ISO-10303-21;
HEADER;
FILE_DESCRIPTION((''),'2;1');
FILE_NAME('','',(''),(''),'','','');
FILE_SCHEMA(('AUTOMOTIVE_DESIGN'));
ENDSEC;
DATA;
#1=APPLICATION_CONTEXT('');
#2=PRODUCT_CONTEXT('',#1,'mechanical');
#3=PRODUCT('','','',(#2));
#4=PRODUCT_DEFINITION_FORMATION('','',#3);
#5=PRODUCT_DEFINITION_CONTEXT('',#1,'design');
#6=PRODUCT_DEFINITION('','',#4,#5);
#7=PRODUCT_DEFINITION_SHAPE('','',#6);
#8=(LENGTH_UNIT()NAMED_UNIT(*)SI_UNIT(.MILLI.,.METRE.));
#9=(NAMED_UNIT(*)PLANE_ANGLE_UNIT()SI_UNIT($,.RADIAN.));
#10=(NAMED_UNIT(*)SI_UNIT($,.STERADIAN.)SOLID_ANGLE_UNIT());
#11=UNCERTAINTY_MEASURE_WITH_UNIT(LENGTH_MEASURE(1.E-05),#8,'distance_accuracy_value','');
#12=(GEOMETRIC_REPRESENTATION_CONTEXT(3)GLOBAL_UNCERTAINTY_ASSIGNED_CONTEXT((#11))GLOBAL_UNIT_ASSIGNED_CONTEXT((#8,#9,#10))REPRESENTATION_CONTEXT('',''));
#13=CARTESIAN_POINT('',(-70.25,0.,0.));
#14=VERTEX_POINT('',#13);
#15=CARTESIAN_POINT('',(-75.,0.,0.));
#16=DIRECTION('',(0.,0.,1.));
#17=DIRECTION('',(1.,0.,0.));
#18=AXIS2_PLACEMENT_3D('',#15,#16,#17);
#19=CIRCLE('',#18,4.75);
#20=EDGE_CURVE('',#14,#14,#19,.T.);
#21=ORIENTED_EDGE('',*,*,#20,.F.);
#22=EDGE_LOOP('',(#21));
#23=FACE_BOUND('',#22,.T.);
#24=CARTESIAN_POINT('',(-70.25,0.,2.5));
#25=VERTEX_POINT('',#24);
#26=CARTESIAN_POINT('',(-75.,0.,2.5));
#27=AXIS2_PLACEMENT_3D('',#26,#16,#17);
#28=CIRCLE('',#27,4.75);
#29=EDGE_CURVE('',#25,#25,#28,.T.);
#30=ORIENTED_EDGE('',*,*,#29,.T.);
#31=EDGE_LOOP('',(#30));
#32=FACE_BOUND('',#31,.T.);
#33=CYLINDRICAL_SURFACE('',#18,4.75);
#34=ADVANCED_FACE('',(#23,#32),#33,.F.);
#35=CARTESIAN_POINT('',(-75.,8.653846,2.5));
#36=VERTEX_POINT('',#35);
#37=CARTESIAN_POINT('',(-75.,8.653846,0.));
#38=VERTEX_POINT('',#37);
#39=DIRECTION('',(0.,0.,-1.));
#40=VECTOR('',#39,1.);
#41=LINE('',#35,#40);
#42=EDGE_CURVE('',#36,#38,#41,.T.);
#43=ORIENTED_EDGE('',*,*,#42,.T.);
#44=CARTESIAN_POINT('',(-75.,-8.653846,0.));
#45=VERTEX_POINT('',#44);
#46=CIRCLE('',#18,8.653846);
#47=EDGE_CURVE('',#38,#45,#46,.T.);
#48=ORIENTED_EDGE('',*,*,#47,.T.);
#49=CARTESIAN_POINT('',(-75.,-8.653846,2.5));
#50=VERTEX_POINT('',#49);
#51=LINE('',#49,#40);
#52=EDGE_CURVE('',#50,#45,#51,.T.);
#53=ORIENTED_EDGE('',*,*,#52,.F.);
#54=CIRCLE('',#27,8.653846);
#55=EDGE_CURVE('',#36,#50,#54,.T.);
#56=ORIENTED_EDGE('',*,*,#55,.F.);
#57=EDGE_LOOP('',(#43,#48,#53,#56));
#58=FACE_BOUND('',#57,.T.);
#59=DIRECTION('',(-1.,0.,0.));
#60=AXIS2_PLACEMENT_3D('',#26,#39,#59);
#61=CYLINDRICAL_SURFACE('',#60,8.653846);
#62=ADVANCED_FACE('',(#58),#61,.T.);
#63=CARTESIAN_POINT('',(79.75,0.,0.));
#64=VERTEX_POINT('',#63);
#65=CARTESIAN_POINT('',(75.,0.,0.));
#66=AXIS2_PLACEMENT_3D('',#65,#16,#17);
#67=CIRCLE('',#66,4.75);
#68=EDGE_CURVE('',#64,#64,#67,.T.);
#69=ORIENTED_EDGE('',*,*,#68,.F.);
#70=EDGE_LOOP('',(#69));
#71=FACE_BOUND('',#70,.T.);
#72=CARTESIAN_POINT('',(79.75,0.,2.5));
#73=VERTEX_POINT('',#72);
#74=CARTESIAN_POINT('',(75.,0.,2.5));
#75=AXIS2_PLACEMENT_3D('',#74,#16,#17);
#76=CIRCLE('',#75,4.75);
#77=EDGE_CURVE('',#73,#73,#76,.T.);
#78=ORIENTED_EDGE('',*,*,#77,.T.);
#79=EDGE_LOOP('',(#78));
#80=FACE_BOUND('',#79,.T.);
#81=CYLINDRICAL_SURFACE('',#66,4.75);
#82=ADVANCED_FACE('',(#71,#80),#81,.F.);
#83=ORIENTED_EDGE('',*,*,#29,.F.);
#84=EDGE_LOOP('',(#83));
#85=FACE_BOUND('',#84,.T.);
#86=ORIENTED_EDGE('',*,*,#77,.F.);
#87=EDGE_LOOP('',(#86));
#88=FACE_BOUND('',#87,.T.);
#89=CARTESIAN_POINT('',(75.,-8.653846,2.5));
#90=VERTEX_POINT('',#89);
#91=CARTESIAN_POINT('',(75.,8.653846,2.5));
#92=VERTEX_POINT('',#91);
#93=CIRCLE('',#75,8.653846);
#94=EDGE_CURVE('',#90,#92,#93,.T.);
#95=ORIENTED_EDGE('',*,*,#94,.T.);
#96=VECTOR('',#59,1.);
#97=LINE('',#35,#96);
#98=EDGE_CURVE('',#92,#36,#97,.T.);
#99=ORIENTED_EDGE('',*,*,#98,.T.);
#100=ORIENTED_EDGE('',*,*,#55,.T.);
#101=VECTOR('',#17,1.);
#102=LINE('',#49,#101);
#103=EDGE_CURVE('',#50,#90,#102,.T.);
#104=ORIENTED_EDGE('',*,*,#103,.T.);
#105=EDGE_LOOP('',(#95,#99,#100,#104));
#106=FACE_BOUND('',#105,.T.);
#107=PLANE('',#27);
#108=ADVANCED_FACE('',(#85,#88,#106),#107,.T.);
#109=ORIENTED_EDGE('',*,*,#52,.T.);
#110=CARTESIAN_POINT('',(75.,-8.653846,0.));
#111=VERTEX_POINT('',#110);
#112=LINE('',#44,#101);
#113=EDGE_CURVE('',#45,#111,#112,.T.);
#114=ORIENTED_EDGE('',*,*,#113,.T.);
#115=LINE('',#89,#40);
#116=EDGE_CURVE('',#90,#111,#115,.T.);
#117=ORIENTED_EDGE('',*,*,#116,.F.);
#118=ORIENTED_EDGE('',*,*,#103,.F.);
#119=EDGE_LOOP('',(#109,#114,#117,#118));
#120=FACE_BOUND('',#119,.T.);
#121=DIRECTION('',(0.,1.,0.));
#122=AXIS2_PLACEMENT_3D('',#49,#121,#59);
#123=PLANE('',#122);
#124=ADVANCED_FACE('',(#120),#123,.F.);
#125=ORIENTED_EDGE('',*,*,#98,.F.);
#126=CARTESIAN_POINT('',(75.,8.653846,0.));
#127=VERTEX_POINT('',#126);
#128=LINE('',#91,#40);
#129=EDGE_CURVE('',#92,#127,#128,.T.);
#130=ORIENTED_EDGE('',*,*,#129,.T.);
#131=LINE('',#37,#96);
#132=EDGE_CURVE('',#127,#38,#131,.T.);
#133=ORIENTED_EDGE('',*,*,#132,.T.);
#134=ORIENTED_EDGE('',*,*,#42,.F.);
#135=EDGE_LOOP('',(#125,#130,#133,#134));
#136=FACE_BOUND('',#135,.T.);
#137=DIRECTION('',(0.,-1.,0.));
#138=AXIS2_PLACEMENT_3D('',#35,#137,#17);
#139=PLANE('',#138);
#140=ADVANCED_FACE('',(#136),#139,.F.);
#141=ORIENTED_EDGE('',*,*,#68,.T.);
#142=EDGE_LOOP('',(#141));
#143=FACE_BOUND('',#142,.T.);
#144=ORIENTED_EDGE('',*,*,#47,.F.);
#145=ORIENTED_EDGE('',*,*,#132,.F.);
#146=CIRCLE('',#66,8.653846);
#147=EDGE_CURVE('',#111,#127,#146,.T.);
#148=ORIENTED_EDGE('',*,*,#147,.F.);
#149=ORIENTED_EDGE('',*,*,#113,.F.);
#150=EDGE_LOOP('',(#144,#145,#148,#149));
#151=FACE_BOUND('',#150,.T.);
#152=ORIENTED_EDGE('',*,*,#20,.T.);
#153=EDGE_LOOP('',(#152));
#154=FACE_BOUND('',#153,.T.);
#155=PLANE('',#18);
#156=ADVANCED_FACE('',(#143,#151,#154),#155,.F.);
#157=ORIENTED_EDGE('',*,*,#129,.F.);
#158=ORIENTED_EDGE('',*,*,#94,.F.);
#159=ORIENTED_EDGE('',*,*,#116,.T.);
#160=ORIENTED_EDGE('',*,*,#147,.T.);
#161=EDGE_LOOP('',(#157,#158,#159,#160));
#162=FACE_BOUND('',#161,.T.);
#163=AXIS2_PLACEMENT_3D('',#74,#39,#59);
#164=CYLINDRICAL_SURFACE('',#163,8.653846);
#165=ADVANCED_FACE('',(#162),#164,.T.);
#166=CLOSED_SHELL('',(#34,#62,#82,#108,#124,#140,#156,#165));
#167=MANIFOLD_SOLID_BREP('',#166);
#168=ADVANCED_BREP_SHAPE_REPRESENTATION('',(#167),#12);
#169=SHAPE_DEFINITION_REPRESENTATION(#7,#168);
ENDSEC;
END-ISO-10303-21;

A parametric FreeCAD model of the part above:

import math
import FreeCAD as App
import Part
import Sketcher

V = App.Vector

doc = App.newDocument("Part")
body = doc.addObject("PartDesign::Body", "Body")

# Sketch on XY plane
sketch1 = body.newObject("Sketcher::SketchObject", "Sketch")
sketch1.AttachmentSupport = (doc.getObject("XY_Plane"), [""])
sketch1.MapMode = "FlatFace"
sketch1.addGeometry([
    Part.LineSegment(V(75, 8.653846, 0), V(-75, 8.653846, 0)),
    Part.ArcOfCircle(Part.Circle(V(-75, 0, 0), V(0, 0, 1), 8.653846), math.radians(90), math.radians(270)),
    Part.LineSegment(V(-75, -8.653846, 0), V(75, -8.653846, 0)),
    Part.ArcOfCircle(Part.Circle(V(75, 0, 0), V(0, 0, 1), 8.653846), math.radians(-90), math.radians(90)),
], False)
sketch1.addConstraint([
    Sketcher.Constraint("Tangent", 0, 2, 1, 1),
    Sketcher.Constraint("Tangent", 1, 2, 2, 1),
    Sketcher.Constraint("Tangent", 2, 2, 3, 1),
    Sketcher.Constraint("Tangent", 3, 2, 0, 1),
    Sketcher.Constraint("Horizontal", 0),
    Sketcher.Constraint("Horizontal", 2),
    Sketcher.Constraint("Symmetric", 1, 3, 3, 3, -1, 1),
    Sketcher.Constraint("DistanceX", 0, 2, 0, 1, 150.0),
    Sketcher.Constraint("Radius", 1, 8.653846),
])
pad1 = body.newObject("PartDesign::Pad", "Pad")
pad1.Profile = sketch1
pad1.Length = 2.5

# Sketch on XY plane
sketch2 = body.newObject("Sketcher::SketchObject", "Sketch001")
sketch2.AttachmentSupport = (doc.getObject("XY_Plane"), [""])
sketch2.MapMode = "FlatFace"
sketch2.AttachmentOffset = App.Placement(V(0, 0, 2.5), App.Rotation())
sketch2.addGeometry([
    Part.Circle(V(-75, 0, 0), V(0, 0, 1), 4.75),
    Part.Circle(V(75, 0, 0), V(0, 0, 1), 4.75),
], False)
sketch2.addConstraint([
    Sketcher.Constraint("Equal", 0, 1),
    Sketcher.Constraint("Symmetric", 0, 3, 1, 3, -1, 1),
    Sketcher.Constraint("PointOnObject", 0, 3, -1),
    Sketcher.Constraint("Diameter", 0, 9.5),
    Sketcher.Constraint("DistanceX", 0, 3, -1, 1, 75.0),
])
pocket1 = body.newObject("PartDesign::Pocket", "Pocket")
pocket1.Profile = sketch2
pocket1.Type = "ThroughAll"

doc.recompute()
